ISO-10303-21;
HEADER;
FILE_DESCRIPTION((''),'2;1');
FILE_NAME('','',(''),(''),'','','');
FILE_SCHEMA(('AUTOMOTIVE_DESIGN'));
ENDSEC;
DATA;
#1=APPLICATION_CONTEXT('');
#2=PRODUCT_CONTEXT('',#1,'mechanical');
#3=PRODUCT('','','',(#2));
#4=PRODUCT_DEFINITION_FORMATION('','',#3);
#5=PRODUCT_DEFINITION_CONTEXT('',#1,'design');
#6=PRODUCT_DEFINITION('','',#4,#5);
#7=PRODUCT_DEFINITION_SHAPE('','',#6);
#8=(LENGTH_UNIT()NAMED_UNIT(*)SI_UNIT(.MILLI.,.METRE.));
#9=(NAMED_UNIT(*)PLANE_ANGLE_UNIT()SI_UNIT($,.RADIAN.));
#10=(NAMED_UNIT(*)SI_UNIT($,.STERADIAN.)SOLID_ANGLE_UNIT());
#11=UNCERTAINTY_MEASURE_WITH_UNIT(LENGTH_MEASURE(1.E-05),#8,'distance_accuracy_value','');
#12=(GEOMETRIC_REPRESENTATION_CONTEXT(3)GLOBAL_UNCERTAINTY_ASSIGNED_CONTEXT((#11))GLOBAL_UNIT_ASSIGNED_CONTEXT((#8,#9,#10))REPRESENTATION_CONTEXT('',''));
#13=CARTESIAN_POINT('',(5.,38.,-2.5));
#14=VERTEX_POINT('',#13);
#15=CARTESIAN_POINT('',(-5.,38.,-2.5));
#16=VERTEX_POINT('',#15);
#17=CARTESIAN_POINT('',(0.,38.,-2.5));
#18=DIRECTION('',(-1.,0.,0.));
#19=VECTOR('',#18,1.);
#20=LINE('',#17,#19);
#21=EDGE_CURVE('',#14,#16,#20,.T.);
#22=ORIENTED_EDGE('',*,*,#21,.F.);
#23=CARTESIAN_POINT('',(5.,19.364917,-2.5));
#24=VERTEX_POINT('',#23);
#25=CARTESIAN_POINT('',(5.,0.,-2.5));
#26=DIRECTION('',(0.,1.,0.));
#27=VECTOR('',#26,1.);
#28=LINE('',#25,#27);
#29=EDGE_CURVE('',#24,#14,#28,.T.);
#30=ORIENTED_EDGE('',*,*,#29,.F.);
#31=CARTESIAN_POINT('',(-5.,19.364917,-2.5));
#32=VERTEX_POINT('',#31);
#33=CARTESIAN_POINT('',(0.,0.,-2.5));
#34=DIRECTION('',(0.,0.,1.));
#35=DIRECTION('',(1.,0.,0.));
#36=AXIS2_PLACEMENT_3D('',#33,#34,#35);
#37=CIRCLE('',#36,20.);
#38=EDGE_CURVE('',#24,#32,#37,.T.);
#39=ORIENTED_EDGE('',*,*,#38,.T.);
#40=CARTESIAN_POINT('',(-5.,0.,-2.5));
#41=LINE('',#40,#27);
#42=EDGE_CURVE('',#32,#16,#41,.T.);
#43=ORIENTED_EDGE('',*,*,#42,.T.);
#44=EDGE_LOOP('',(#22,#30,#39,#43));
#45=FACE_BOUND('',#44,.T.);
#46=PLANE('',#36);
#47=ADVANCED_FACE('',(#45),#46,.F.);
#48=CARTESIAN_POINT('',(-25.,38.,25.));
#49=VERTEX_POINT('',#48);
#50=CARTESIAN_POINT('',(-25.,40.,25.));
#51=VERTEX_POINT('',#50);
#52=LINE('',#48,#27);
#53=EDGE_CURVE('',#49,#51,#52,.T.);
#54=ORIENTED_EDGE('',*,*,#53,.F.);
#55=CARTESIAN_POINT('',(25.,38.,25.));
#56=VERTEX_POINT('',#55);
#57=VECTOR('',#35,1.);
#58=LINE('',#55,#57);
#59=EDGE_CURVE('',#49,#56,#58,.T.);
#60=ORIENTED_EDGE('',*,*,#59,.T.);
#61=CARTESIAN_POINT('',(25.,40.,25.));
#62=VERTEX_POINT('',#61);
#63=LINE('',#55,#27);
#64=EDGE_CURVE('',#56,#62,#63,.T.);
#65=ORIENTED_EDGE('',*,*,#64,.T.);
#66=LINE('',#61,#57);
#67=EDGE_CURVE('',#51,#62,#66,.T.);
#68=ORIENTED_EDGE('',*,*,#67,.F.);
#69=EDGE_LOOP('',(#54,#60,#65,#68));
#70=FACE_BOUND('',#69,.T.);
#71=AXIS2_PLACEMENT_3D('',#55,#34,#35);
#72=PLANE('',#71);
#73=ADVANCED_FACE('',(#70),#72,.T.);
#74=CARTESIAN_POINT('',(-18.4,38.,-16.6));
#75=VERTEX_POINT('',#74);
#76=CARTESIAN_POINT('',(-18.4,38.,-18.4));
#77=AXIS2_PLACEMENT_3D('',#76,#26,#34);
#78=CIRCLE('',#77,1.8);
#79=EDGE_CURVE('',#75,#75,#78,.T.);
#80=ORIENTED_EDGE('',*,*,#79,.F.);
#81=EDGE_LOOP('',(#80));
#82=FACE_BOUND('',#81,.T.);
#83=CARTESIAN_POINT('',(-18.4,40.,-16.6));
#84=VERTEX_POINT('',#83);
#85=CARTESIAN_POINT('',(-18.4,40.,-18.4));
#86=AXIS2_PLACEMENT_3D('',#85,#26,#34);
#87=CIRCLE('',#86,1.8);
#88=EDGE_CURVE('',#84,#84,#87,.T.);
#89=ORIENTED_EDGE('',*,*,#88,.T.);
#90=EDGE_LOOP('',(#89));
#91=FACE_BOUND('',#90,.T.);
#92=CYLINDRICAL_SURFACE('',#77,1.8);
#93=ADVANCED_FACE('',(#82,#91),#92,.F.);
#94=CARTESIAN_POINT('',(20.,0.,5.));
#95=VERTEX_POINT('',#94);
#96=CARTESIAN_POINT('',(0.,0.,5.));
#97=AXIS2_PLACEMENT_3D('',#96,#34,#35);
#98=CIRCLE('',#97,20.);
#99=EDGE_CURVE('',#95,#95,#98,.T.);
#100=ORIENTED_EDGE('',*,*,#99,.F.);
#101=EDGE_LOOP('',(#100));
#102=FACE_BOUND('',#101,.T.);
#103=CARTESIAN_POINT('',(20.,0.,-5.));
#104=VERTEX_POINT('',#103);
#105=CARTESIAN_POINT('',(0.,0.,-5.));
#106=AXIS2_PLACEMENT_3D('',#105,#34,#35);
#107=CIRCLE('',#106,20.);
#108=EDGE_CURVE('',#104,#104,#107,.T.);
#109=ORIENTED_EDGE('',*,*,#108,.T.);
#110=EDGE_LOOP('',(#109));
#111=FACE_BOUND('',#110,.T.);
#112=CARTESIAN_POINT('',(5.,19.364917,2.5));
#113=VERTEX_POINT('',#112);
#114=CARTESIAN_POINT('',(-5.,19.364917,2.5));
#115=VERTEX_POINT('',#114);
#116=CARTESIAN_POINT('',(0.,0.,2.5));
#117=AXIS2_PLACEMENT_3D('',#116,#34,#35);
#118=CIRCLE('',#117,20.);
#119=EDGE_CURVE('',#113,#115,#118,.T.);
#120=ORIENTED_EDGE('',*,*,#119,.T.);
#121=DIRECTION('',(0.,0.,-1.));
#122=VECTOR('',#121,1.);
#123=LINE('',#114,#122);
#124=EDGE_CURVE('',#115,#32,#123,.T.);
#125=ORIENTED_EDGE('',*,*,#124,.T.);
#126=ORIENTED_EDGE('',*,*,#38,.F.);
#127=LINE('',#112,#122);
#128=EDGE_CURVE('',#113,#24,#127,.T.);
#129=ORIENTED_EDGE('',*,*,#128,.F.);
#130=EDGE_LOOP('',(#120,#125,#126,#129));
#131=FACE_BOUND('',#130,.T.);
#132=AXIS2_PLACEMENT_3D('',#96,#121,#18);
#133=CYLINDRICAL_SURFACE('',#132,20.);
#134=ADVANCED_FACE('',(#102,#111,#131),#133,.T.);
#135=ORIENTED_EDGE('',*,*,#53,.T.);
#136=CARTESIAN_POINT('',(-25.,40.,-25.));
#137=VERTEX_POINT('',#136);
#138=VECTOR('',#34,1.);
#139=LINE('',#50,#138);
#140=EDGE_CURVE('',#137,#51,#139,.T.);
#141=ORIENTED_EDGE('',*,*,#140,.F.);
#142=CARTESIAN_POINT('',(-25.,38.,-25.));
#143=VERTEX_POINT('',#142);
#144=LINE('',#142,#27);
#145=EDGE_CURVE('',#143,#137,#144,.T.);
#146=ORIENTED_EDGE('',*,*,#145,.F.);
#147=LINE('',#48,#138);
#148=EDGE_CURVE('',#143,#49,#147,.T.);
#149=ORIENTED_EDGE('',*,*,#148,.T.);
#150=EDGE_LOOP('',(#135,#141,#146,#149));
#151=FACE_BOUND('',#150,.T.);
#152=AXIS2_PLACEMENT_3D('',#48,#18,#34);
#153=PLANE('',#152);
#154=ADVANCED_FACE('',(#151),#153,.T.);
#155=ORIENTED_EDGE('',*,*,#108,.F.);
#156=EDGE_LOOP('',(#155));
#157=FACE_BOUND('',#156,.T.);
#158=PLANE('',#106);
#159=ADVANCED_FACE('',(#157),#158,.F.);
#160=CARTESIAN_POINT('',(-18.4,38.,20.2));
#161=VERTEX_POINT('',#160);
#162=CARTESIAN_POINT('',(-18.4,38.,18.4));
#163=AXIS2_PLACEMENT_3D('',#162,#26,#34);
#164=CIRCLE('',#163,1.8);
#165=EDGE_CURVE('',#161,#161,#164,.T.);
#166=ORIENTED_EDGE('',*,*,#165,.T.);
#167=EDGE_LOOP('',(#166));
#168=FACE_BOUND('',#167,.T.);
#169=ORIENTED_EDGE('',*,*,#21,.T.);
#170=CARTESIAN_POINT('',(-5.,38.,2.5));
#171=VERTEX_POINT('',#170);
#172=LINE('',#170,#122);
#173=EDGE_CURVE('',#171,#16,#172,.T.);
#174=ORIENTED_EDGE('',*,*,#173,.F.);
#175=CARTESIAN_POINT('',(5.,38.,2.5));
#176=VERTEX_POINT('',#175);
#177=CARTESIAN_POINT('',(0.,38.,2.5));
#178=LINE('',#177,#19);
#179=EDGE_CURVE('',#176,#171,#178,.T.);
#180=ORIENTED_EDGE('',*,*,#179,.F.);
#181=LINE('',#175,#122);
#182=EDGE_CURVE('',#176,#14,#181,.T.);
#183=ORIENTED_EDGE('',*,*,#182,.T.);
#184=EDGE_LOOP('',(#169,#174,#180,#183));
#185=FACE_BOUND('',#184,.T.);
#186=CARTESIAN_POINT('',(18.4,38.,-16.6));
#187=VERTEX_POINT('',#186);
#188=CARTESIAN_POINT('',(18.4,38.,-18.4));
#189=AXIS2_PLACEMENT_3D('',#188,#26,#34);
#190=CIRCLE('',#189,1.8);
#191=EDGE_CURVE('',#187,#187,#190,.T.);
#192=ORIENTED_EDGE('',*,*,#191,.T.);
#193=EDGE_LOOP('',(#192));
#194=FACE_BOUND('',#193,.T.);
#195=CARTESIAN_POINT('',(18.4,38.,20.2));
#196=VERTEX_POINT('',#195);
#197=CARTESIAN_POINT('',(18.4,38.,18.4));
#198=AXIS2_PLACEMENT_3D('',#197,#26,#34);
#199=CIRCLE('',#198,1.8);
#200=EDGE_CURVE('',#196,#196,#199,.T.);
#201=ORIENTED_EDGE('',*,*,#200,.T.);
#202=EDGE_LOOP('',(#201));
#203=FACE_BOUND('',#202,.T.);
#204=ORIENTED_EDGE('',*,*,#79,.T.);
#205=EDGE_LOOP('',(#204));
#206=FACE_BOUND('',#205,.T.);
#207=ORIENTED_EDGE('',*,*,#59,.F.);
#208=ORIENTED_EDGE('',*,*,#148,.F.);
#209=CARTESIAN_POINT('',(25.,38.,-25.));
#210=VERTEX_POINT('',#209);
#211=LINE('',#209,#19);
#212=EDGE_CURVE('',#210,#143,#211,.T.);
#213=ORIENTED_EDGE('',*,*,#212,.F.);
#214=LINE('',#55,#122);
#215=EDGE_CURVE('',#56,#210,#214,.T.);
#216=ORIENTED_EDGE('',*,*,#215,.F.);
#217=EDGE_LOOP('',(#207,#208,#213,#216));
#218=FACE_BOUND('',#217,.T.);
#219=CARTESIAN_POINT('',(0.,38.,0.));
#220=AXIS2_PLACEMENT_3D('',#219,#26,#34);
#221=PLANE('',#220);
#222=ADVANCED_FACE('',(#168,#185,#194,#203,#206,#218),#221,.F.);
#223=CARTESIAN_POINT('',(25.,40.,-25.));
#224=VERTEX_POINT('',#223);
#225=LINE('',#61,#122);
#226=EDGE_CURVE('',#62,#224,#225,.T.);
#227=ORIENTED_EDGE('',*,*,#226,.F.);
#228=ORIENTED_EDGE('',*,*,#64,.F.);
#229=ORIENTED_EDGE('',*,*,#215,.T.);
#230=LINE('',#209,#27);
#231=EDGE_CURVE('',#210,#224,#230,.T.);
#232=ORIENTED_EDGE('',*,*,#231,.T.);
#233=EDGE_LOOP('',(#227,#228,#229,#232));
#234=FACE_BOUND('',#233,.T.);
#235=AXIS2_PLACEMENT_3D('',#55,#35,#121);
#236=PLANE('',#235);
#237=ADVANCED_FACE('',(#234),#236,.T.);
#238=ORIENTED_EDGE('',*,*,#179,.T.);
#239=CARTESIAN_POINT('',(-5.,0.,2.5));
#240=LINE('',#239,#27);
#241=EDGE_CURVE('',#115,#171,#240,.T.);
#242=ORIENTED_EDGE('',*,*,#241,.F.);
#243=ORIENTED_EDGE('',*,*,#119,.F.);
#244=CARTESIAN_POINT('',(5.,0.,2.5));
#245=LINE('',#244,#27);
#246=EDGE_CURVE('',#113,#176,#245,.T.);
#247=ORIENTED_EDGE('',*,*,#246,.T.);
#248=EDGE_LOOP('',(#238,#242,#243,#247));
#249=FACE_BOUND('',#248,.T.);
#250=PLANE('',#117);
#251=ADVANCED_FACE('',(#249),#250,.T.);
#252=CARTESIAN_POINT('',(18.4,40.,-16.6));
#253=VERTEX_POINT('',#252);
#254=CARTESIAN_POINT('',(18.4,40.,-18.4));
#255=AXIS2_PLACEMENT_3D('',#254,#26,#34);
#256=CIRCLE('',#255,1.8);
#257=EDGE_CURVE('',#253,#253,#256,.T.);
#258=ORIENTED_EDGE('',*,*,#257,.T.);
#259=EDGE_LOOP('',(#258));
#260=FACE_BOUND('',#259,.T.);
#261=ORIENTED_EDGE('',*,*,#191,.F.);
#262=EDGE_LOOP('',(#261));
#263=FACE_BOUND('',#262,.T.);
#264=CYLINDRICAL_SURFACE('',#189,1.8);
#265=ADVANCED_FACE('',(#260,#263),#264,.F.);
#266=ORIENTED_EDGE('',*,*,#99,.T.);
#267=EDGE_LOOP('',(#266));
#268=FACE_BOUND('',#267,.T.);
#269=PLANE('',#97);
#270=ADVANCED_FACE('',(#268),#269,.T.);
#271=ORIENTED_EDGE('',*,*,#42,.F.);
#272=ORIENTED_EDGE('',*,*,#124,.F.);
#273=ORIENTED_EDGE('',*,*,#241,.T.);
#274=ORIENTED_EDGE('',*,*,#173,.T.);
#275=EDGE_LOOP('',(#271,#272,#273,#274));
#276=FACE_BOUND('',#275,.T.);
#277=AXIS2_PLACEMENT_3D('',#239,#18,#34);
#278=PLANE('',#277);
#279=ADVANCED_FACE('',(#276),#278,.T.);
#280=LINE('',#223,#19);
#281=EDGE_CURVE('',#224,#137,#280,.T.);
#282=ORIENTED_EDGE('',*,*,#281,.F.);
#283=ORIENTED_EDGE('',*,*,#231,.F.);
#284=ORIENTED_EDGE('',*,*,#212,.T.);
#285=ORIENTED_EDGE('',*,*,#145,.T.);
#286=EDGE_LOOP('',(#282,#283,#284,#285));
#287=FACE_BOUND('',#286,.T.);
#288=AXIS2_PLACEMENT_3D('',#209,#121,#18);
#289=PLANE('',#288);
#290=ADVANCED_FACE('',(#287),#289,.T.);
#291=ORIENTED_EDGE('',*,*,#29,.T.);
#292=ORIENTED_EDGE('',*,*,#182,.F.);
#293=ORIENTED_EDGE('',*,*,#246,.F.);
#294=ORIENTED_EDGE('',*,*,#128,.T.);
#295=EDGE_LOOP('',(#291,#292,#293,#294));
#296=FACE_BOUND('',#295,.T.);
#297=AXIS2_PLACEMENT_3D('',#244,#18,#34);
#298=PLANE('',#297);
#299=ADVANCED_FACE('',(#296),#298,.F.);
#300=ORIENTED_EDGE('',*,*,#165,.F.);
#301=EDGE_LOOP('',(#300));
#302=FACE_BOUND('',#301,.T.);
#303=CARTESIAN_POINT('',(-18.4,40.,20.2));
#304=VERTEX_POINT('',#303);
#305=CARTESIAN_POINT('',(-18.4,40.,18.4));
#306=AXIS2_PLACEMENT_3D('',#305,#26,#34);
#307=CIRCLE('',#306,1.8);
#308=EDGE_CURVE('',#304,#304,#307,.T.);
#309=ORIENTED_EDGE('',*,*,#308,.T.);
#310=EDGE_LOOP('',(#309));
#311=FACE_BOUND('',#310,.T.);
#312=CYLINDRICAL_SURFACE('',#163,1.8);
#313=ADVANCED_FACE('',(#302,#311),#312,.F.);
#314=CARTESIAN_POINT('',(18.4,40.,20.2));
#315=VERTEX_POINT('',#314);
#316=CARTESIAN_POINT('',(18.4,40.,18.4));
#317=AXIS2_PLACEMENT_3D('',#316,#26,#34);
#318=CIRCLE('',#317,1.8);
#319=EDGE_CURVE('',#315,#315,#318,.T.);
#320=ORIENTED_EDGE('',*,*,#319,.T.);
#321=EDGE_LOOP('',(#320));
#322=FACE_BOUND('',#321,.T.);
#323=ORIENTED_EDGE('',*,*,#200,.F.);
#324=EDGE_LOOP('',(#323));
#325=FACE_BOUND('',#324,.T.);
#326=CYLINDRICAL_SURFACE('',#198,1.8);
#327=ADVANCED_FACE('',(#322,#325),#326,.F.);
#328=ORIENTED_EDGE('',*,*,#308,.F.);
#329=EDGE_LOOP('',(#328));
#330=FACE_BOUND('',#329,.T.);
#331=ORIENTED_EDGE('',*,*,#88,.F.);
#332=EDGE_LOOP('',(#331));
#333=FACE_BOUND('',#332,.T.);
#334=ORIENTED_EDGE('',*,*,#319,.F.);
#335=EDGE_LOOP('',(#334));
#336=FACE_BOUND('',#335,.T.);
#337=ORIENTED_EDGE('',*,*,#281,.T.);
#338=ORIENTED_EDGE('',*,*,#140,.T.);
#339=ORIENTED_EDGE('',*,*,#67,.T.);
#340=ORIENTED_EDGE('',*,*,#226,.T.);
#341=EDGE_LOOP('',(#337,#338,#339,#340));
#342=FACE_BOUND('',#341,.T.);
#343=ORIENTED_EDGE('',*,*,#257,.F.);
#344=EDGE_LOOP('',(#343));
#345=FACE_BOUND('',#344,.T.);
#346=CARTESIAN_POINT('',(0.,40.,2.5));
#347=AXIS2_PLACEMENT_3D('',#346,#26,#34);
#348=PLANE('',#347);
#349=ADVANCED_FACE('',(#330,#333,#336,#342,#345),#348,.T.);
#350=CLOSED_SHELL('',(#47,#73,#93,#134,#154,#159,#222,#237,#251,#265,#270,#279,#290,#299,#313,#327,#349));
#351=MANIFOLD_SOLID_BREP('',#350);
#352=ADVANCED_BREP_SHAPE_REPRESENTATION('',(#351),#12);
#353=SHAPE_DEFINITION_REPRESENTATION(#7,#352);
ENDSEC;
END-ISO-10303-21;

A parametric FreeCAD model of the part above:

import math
import FreeCAD as App
import Part
import Sketcher
from FreeCAD import Vector

doc = App.newDocument("Part")
body = doc.addObject("PartDesign::Body", "Body")

sketch1 = body.newObject("Sketcher::SketchObject", "Sketch")
sketch1.AttachmentSupport = (doc.getObject("XY_Plane"), [""])
sketch1.MapMode = "FlatFace"
sketch1.addGeometry(Part.Circle(Vector(0, 0, 0), Vector(0, 0, 1), 20), False)
sketch1.addConstraint(Sketcher.Constraint("Coincident", 0, 3, -1, 1))
sketch1.addConstraint(Sketcher.Constraint("Diameter", 0, 40.0))
pad1 = body.newObject("PartDesign::Pad", "Pad")
pad1.Profile = sketch1
pad1.Length = 10
pad1.Midplane = True

sketch2 = body.newObject("Sketcher::SketchObject", "Sketch001")
sketch2.AttachmentSupport = (doc.getObject("XY_Plane"), [""])
sketch2.MapMode = "FlatFace"
sketch2.addGeometry(Part.ArcOfCircle(Part.Circle(Vector(0, 0, 0), Vector(0, 0, 1), 20), math.radians(104.477512), math.radians(435.522488)), False)
sketch2.addGeometry(Part.LineSegment(Vector(5, 19.364917, 0), Vector(5, 40, 0)), False)
sketch2.addGeometry(Part.LineSegment(Vector(5, 40, 0), Vector(-5, 40, 0)), False)
sketch2.addGeometry(Part.LineSegment(Vector(-5, 40, 0), Vector(-5, 19.364917, 0)), False)
sketch2.addConstraint(Sketcher.Constraint("Coincident", 0, 2, 1, 1))
sketch2.addConstraint(Sketcher.Constraint("Coincident", 1, 2, 2, 1))
sketch2.addConstraint(Sketcher.Constraint("Coincident", 2, 2, 3, 1))
sketch2.addConstraint(Sketcher.Constraint("Coincident", 3, 2, 0, 1))
sketch2.addConstraint(Sketcher.Constraint("Vertical", 1))
sketch2.addConstraint(Sketcher.Constraint("Horizontal", 2))
sketch2.addConstraint(Sketcher.Constraint("Vertical", 3))
sketch2.addConstraint(Sketcher.Constraint("Coincident", 0, 3, -1, 1))
sketch2.addConstraint(Sketcher.Constraint("Horizontal", 0, 2, 3, 2))
sketch2.addConstraint(Sketcher.Constraint("Radius", 0, 20.0))
sketch2.addConstraint(Sketcher.Constraint("DistanceX", 2, 2, 2, 1, 10.0))
sketch2.addConstraint(Sketcher.Constraint("DistanceY", -1, 1, 1, 2, 40.0))
pad2 = body.newObject("PartDesign::Pad", "Pad001")
pad2.Profile = sketch2
pad2.Length = 5
pad2.Midplane = True

sketch3 = body.newObject("Sketcher::SketchObject", "Sketch002")
sketch3.AttachmentSupport = (doc.getObject("XZ_Plane"), [""])
sketch3.MapMode = "FlatFace"
sketch3.AttachmentOffset = App.Placement(Vector(0, 0, -40), App.Rotation())
sketch3.addGeometry(Part.LineSegment(Vector(-25, -25, 0), Vector(-25, 25, 0)), False)
sketch3.addGeometry(Part.LineSegment(Vector(-25, 25, 0), Vector(25, 25, 0)), False)
sketch3.addGeometry(Part.LineSegment(Vector(25, 25, 0), Vector(25, -25, 0)), False)
sketch3.addGeometry(Part.LineSegment(Vector(25, -25, 0), Vector(-25, -25, 0)), False)
sketch3.addGeometry(Part.Circle(Vector(-18.4, 18.4, 0), Vector(0, 0, 1), 1.8), False)
sketch3.addGeometry(Part.Circle(Vector(18.4, 18.4, 0), Vector(0, 0, 1), 1.8), False)
sketch3.addGeometry(Part.Circle(Vector(-18.4, -18.4, 0), Vector(0, 0, 1), 1.8), False)
sketch3.addGeometry(Part.Circle(Vector(18.4, -18.4, 0), Vector(0, 0, 1), 1.8), False)
sketch3.addConstraint(Sketcher.Constraint("Coincident", 0, 2, 1, 1))
sketch3.addConstraint(Sketcher.Constraint("Coincident", 1, 2, 2, 1))
sketch3.addConstraint(Sketcher.Constraint("Coincident", 2, 2, 3, 1))
sketch3.addConstraint(Sketcher.Constraint("Coincident", 3, 2, 0, 1))
sketch3.addConstraint(Sketcher.Constraint("Vertical", 0))
sketch3.addConstraint(Sketcher.Constraint("Horizontal", 1))
sketch3.addConstraint(Sketcher.Constraint("Vertical", 2))
sketch3.addConstraint(Sketcher.Constraint("Horizontal", 3))
sketch3.addConstraint(Sketcher.Constraint("Equal", 4, 5))
sketch3.addConstraint(Sketcher.Constraint("Equal", 5, 6))
sketch3.addConstraint(Sketcher.Constraint("Equal", 6, 7))
sketch3.addConstraint(Sketcher.Constraint("Symmetric", 5, 3, 6, 3, -1, 1))
sketch3.addConstraint(Sketcher.Constraint("Symmetric", 4, 3, 7, 3, -1, 1))
sketch3.addConstraint(Sketcher.Constraint("Symmetric", 0, 2, 2, 2, -1, 1))
sketch3.addConstraint(Sketcher.Constraint("Symmetric", 4, 3, 5, 3, -2))
sketch3.addConstraint(Sketcher.Constraint("Equal", 3, 0))
sketch3.addConstraint(Sketcher.Constraint("Diameter", 4, 3.6))
sketch3.addConstraint(Sketcher.Constraint("DistanceX", 1, 1, 1, 2, 50.0))
sketch3.addConstraint(Sketcher.Constraint("DistanceX", 4, 3, -1, 1, 18.4))
sketch3.addConstraint(Sketcher.Constraint("DistanceY", -1, 1, 4, 3, 18.4))
pad3 = body.newObject("PartDesign::Pad", "Pad002")
pad3.Profile = sketch3
pad3.Length = 2

doc.recompute()
